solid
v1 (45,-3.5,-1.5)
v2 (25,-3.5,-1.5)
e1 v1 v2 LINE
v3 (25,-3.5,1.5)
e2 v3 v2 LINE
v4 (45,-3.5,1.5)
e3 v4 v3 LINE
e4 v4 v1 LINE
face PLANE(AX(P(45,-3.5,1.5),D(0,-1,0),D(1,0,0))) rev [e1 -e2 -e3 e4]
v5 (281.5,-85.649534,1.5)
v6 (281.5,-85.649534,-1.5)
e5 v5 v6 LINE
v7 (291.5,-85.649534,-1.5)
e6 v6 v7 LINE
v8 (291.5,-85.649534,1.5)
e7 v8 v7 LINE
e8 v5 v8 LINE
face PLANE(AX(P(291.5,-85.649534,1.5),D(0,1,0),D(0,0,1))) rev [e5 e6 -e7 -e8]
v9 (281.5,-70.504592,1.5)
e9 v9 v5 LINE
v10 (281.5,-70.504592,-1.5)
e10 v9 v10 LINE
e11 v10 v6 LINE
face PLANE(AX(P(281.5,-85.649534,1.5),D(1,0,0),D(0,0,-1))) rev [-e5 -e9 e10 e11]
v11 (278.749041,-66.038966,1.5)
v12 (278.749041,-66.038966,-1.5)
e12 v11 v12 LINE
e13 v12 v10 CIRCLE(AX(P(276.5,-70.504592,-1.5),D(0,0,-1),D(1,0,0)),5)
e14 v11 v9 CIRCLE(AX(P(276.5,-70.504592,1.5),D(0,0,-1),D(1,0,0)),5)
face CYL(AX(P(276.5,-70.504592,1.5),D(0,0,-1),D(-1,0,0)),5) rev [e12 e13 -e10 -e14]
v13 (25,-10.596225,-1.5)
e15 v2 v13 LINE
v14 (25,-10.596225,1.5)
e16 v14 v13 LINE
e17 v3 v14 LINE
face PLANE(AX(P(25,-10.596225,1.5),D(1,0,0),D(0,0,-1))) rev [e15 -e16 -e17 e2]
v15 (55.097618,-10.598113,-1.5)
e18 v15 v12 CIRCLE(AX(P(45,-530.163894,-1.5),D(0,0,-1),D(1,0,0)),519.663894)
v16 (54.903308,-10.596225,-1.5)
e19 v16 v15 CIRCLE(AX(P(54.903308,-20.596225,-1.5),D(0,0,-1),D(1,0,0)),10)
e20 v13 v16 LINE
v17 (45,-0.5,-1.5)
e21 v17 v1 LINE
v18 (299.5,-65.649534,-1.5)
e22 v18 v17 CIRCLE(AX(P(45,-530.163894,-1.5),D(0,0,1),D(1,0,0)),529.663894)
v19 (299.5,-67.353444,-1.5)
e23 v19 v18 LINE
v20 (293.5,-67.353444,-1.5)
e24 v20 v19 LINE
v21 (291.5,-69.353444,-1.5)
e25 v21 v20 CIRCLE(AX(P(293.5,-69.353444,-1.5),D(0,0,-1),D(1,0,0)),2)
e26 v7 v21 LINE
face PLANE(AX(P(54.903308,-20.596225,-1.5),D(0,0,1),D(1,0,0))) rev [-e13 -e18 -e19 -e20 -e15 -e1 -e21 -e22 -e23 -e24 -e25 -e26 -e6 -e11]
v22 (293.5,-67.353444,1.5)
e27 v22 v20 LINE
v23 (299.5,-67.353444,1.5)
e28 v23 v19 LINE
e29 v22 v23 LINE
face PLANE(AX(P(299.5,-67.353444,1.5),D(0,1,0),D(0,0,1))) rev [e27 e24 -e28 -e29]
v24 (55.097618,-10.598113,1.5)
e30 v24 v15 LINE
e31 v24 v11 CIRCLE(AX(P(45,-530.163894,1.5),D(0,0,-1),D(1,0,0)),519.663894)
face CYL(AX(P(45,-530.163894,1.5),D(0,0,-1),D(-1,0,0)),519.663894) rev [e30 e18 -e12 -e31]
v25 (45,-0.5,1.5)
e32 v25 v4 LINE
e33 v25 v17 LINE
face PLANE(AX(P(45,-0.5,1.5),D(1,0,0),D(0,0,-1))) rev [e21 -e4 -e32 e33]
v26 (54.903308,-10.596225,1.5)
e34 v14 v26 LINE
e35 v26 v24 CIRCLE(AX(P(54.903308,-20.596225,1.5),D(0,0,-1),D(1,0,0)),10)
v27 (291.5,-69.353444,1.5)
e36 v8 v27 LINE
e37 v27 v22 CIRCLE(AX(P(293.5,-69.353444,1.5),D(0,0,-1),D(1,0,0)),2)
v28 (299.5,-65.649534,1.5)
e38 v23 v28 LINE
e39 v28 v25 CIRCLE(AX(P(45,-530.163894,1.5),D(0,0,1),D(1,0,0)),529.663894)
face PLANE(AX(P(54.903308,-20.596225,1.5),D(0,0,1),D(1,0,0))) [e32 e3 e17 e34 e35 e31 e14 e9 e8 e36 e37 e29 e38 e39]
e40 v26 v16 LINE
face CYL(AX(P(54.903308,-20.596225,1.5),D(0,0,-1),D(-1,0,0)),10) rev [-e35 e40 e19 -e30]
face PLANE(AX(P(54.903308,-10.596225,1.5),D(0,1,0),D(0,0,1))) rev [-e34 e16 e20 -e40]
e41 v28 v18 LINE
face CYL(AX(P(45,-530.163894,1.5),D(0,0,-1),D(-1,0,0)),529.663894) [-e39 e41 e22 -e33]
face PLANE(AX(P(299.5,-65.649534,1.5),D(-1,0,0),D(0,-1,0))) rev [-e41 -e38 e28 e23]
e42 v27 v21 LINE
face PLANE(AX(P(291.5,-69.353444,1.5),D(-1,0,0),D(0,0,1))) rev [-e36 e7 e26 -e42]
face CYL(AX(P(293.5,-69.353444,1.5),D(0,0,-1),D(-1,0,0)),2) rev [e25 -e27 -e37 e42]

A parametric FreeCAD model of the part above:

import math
import FreeCAD as App
import Part
import Sketcher
Q = App.Units.Quantity

doc = App.newDocument("Part")
body = doc.addObject("PartDesign::Body", "Body")

# Sketch on XY plane
sketch1 = body.newObject("Sketcher::SketchObject", "Sketch")
sketch1.AttachmentSupport = (doc.getObject("XY_Plane"), [""])
sketch1.MapMode = "FlatFace"
sketch1.addGeometry([
    Part.LineSegment(App.Vector(293.5, -67.35, 0), App.Vector(299.5, -67.35, 0)),  # 0
    Part.LineSegment(App.Vector(299.5, -67.35, 0), App.Vector(299.5, -65.65, 0)),  # 1
    Part.ArcOfCircle(Part.Circle(App.Vector(45, -530.16, 0), App.Vector(0, 0, 1), 529.66), math.radians(61), math.radians(90)),  # 2
    Part.LineSegment(App.Vector(45, -0.5, 0), App.Vector(45, -3.5, 0)),  # 3
    Part.LineSegment(App.Vector(45, -3.5, 0), App.Vector(25, -3.5, 0)),  # 4
    Part.LineSegment(App.Vector(25, -3.5, 0), App.Vector(25, -10.6, 0)),  # 5
    Part.LineSegment(App.Vector(25, -10.6, 0), App.Vector(54.9, -10.6, 0)),  # 6
    Part.ArcOfCircle(Part.Circle(App.Vector(54.9, -20.6, 0), App.Vector(0, 0, 1), 10), math.radians(88.89), math.radians(90)),  # 7
    Part.ArcOfCircle(Part.Circle(App.Vector(45, -530.16, 0), App.Vector(0, 0, 1), 519.66), math.radians(63), math.radians(89)),  # 8
    Part.ArcOfCircle(Part.Circle(App.Vector(276.5, -70.5, 0), App.Vector(0, 0, 1), 5), math.radians(0), math.radians(63)),  # 9
    Part.LineSegment(App.Vector(281.5, -70.5, 0), App.Vector(281.5, -85.65, 0)),  # 10
    Part.LineSegment(App.Vector(281.5, -85.65, 0), App.Vector(291.5, -85.65, 0)),  # 11
    Part.LineSegment(App.Vector(291.5, -85.65, 0), App.Vector(291.5, -69.35, 0)),  # 12
    Part.ArcOfCircle(Part.Circle(App.Vector(293.5, -69.35, 0), App.Vector(0, 0, 1), 2), math.radians(90), math.radians(180)),  # 13
], False)
sketch1.addConstraint([
    Sketcher.Constraint("Coincident", 0, 2, 1, 1),
    Sketcher.Constraint("Coincident", 1, 2, 2, 1),
    Sketcher.Constraint("Coincident", 2, 2, 3, 1),
    Sketcher.Constraint("Coincident", 3, 2, 4, 1),
    Sketcher.Constraint("Coincident", 4, 2, 5, 1),
    Sketcher.Constraint("Coincident", 5, 2, 6, 1),
    Sketcher.Constraint("Tangent", 6, 2, 7, 2),
    Sketcher.Constraint("Tangent", 7, 1, 8, 2),
    Sketcher.Constraint("Tangent", 8, 1, 9, 2),
    Sketcher.Constraint("Tangent", 9, 1, 10, 1),
    Sketcher.Constraint("Coincident", 10, 2, 11, 1),
    Sketcher.Constraint("Coincident", 11, 2, 12, 1),
    Sketcher.Constraint("Tangent", 12, 2, 13, 2),
    Sketcher.Constraint("Tangent", 13, 1, 0, 1),
    Sketcher.Constraint("Horizontal", 0),
    Sketcher.Constraint("Vertical", 1),
    Sketcher.Constraint("Vertical", 3),
    Sketcher.Constraint("Horizontal", 4),
    Sketcher.Constraint("Vertical", 5),
    Sketcher.Constraint("Horizontal", 6),
    Sketcher.Constraint("Vertical", 10),
    Sketcher.Constraint("Horizontal", 11),
    Sketcher.Constraint("Vertical", 12),
    Sketcher.Constraint("Coincident", 8, 3, 2, 3),
    Sketcher.Constraint("Radius", 9, Q("5 mm")),
    Sketcher.Constraint("Radius", 13, Q("2 mm")),
    Sketcher.Constraint("DistanceX", 0, 1, 0, 2, Q("6 mm")),
    Sketcher.Constraint("DistanceX", 4, 2, 4, 1, Q("20 mm")),
    Sketcher.Constraint("DistanceX", 11, 1, 11, 2, Q("10 mm")),
    Sketcher.Constraint("DistanceY", 3, 2, 3, 1, Q("3 mm")),
    Sketcher.Constraint("DistanceX", -1, 1, 2, 3, Q("45 mm")),
    Sketcher.Constraint("DistanceX", -1, 1, 3, 2, Q("45 mm")),
    Sketcher.Constraint("DistanceX", -1, 1, 9, 3, Q("276.5 mm")),
    Sketcher.Constraint("DistanceY", 2, 2, -1, 1, Q("0.5 mm")),
    Sketcher.Constraint("Radius", 2, Q("529.663894 mm")),
    Sketcher.Constraint("Radius", 7, Q("9.999996 mm")),
    Sketcher.Constraint("Radius", 8, Q("519.663894 mm")),
    Sketcher.Constraint("DistanceY", 1, 1, 1, 2, Q("1.70391 mm")),
    Sketcher.Constraint("DistanceY", 10, 2, 10, 1, Q("15.144942 mm")),
    Sketcher.Constraint("DistanceX", 6, 1, 6, 2, Q("29.903308 mm")),
])
pad1 = body.newObject("PartDesign::Pad", "Pad")
pad1.Profile = sketch1
pad1.Length = 3
pad1.Midplane = True

doc.recompute()
